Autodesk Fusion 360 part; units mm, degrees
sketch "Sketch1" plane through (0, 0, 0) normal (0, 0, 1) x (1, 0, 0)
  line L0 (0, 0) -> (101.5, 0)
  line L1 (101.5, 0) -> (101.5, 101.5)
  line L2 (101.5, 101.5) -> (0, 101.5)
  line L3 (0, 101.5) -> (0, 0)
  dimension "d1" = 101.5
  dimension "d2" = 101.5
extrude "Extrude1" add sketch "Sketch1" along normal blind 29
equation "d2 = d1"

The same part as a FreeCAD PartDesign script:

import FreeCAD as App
import Part
import Sketcher

V = App.Vector


def add_polygon(sketch, points):
    """Adds a closed chain of lines whose ends are joined by coincident constraints."""
    first, n = sketch.GeometryCount, len(points)
    for a, b in zip(points, points[1:] + points[:1]):
        sketch.addGeometry(Part.LineSegment(App.Vector(*a, 0), App.Vector(*b, 0)), False)
    for i in range(n):
        sketch.addConstraint(Sketcher.Constraint("Coincident", first + i, 2, first + (i + 1) % n, 1))

doc = App.newDocument("Part")
body = doc.addObject("PartDesign::Body", "Body")

# Sketch on XY plane
sketch1 = body.newObject("Sketcher::SketchObject", "Sketch")
sketch1.AttachmentSupport = (doc.getObject("XY_Plane"), [""])
sketch1.MapMode = "FlatFace"
add_polygon(sketch1, [(0, 101.5), (0, 0), (101.5, 0), (101.5, 101.5)])  # lines 0-3
sketch1.addConstraint([
    Sketcher.Constraint("Vertical", 0),
    Sketcher.Constraint("Horizontal", 1),
    Sketcher.Constraint("Vertical", 2),
    Sketcher.Constraint("Horizontal", 3),
    Sketcher.Constraint("Coincident", 0, 2, -1, 1),
    Sketcher.Constraint("Equal", 3, 0),
    Sketcher.Constraint("DistanceX", 1, 1, 1, 2, 101.5),
])
pad1 = body.newObject("PartDesign::Pad", "Pad")
pad1.Profile = sketch1
pad1.Length = 29

doc.recompute()
